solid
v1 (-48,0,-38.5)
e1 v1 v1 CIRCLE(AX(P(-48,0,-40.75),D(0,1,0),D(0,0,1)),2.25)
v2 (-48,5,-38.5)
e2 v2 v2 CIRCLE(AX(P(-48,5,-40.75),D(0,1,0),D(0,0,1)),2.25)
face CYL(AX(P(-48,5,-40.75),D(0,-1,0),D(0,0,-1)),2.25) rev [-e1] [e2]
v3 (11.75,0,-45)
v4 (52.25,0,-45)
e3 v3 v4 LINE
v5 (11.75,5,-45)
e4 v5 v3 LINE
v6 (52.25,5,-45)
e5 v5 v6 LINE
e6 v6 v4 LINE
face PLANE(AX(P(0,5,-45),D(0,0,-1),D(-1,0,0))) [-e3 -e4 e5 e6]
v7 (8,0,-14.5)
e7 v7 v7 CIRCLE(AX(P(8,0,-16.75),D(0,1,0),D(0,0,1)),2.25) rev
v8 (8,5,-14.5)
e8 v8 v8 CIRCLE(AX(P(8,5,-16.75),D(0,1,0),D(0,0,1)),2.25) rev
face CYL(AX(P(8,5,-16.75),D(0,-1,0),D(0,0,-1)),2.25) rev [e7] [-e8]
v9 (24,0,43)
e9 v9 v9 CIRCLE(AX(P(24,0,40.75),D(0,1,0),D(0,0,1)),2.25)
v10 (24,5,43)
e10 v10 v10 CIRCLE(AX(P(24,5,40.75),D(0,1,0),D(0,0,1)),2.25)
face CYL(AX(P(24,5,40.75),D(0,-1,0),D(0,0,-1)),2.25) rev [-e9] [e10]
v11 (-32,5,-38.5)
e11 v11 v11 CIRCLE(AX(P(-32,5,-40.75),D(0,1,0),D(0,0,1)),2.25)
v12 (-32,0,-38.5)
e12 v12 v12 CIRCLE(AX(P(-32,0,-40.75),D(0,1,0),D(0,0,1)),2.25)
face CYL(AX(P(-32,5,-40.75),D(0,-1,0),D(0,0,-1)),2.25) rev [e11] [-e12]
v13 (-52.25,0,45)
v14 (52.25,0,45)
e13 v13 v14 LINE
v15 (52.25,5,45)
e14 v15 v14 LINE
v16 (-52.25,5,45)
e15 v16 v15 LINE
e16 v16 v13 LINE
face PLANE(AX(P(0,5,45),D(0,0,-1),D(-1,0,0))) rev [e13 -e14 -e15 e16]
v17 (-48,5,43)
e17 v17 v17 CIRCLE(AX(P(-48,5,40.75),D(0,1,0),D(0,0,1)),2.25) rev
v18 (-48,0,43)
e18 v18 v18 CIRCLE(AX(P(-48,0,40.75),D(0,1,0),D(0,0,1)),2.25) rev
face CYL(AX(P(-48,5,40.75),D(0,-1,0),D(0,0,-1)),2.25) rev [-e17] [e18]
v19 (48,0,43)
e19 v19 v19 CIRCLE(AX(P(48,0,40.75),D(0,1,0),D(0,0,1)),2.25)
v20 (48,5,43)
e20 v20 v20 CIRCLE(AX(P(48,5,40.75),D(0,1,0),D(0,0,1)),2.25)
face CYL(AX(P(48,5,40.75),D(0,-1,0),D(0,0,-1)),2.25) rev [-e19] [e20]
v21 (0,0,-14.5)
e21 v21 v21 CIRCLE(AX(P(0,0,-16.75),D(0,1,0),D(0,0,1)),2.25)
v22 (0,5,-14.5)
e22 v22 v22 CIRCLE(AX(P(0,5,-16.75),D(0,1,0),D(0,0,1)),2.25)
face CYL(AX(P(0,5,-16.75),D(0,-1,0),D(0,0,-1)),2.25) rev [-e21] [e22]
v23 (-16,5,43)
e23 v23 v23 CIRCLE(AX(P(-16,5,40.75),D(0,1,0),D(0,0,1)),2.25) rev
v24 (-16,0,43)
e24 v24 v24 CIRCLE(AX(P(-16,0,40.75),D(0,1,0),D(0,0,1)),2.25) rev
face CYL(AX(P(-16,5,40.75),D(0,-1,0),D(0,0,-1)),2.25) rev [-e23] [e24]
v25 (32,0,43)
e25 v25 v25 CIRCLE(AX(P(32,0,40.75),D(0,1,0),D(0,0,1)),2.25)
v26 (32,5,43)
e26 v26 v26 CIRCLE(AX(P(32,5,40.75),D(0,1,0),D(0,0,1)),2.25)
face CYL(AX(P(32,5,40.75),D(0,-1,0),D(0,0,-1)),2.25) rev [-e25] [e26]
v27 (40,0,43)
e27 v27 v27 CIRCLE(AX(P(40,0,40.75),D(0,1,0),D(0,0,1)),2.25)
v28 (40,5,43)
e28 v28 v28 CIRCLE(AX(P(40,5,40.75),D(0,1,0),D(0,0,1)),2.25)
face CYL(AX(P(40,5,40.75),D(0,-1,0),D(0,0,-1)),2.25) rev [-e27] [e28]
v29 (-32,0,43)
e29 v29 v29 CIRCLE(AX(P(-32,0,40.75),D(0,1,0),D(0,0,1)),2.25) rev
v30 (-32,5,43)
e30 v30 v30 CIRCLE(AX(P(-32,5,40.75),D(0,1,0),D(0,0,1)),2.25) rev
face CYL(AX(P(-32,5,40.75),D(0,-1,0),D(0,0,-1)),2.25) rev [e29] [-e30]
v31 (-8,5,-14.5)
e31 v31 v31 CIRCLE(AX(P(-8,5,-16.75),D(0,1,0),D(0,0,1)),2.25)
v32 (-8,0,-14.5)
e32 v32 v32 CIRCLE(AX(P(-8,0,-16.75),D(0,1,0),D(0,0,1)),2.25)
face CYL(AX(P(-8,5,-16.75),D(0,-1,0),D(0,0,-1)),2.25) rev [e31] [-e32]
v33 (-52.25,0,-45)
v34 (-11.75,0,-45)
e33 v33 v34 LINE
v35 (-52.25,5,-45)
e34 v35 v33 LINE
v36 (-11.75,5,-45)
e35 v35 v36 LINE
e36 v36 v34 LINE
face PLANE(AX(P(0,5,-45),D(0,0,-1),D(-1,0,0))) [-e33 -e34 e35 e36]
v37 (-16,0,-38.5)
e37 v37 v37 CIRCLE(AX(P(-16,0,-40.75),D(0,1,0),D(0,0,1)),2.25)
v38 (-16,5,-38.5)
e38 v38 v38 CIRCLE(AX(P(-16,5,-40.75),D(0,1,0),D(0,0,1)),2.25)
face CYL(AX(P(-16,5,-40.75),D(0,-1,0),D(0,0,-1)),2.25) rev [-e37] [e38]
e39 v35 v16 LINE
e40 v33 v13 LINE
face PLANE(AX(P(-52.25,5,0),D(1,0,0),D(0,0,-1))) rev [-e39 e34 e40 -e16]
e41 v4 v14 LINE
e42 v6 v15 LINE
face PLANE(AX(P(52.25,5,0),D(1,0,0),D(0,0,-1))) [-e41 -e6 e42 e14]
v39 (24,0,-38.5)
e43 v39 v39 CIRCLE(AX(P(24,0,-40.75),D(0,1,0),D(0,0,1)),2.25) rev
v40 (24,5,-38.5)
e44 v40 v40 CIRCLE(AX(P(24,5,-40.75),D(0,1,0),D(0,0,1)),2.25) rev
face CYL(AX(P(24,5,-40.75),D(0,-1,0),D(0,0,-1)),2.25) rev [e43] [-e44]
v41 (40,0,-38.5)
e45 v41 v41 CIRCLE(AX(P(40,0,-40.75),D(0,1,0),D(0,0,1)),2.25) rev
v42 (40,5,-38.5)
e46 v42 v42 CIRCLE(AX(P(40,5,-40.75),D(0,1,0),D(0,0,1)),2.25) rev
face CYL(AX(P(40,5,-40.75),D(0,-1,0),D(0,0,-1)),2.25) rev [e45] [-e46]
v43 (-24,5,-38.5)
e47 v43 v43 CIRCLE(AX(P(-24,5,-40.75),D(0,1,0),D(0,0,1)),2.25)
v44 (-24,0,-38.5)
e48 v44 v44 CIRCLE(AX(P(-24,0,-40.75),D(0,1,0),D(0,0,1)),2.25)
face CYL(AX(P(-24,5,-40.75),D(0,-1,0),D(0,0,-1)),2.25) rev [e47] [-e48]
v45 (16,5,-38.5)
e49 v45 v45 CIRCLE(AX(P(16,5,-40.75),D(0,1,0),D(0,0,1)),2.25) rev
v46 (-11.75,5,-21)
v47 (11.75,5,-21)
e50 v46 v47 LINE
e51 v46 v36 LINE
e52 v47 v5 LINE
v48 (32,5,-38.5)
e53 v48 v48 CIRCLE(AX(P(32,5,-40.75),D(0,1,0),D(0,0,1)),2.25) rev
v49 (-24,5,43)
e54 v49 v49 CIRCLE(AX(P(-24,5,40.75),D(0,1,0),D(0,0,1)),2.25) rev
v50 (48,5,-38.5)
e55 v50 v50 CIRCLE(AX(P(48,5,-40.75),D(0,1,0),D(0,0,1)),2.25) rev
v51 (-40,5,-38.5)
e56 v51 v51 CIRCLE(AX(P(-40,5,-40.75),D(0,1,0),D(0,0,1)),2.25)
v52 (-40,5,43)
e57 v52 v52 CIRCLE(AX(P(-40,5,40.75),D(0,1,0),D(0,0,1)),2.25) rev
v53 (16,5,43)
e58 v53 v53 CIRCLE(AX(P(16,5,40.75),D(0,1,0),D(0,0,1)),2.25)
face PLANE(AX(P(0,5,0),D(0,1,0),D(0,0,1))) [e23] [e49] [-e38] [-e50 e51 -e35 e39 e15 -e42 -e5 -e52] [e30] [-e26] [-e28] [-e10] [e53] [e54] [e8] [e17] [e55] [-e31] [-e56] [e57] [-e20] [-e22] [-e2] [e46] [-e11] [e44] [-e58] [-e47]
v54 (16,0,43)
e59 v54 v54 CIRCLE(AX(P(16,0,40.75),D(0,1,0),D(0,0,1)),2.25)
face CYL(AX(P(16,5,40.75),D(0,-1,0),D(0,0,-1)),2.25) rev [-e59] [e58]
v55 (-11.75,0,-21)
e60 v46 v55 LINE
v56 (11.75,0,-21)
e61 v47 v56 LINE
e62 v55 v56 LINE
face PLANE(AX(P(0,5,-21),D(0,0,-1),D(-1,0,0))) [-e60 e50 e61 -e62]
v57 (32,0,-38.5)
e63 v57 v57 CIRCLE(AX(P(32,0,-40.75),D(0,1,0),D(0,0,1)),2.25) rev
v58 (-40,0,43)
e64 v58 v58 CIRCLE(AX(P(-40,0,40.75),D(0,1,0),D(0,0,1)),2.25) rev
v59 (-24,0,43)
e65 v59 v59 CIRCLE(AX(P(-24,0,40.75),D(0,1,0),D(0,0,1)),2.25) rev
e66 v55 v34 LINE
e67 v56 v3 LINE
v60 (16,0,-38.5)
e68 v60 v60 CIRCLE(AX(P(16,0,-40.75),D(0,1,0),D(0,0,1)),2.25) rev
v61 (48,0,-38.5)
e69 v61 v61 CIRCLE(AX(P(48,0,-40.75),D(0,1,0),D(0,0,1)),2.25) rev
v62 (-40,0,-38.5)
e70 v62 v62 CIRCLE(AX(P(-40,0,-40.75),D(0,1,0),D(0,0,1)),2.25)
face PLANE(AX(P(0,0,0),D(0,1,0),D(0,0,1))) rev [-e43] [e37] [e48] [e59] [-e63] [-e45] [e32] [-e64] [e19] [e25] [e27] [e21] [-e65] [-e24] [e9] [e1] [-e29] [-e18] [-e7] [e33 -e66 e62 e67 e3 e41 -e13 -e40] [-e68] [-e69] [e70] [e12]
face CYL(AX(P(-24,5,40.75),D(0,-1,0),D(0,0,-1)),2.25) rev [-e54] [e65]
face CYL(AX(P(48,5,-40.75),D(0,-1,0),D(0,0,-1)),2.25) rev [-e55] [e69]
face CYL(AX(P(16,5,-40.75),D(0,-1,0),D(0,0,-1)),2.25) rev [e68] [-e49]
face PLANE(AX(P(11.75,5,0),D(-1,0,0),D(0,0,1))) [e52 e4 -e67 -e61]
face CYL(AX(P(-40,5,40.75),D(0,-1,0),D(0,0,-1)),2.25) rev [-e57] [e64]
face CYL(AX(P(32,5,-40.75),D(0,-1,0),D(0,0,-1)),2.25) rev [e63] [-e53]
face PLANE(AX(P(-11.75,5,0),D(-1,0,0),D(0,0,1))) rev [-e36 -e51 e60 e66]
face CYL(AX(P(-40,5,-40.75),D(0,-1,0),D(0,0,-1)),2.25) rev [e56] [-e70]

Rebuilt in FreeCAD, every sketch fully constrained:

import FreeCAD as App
import Part
import Sketcher
from FreeCAD import Vector

doc = App.newDocument("Part")
body = doc.addObject("PartDesign::Body", "Body")

# Sketch on XZ plane
sketch1 = body.newObject("Sketcher::SketchObject", "Sketch")
sketch1.AttachmentSupport = (doc.getObject("XZ_Plane"), [""])
sketch1.MapMode = "FlatFace"
sketch1.addGeometry([
    Part.LineSegment(Vector(-11.75, -45, 0), Vector(-52.25, -45, 0)),  # 0
    Part.LineSegment(Vector(-52.25, -45, 0), Vector(-52.25, 45, 0)),  # 1
    Part.LineSegment(Vector(-52.25, 45, 0), Vector(52.25, 45, 0)),  # 2
    Part.LineSegment(Vector(52.25, 45, 0), Vector(52.25, -45, 0)),  # 3
    Part.LineSegment(Vector(52.25, -45, 0), Vector(11.75, -45, 0)),  # 4
    Part.LineSegment(Vector(11.75, -45, 0), Vector(11.75, -21, 0)),  # 5
    Part.LineSegment(Vector(11.75, -21, 0), Vector(-11.75, -21, 0)),  # 6
    Part.LineSegment(Vector(-11.75, -21, 0), Vector(-11.75, -45, 0)),  # 7
    Part.Circle(Vector(-48, 40.75, 0), Vector(0, 0, 1), 2.25),  # 8
    Part.Circle(Vector(-40, 40.75, 0), Vector(0, 0, 1), 2.25),  # 9
    Part.Circle(Vector(-32, 40.75, 0), Vector(0, 0, 1), 2.25),  # 10
    Part.Circle(Vector(-24, 40.75, 0), Vector(0, 0, 1), 2.25),  # 11
    Part.Circle(Vector(-16, 40.75, 0), Vector(0, 0, 1), 2.25),  # 12
    Part.Circle(Vector(16, 40.75, 0), Vector(0, 0, 1), 2.25),  # 13
    Part.Circle(Vector(24, 40.75, 0), Vector(0, 0, 1), 2.25),  # 14
    Part.Circle(Vector(32, 40.75, 0), Vector(0, 0, 1), 2.25),  # 15
    Part.Circle(Vector(40, 40.75, 0), Vector(0, 0, 1), 2.25),  # 16
    Part.Circle(Vector(48, 40.75, 0), Vector(0, 0, 1), 2.25),  # 17
    Part.Circle(Vector(-8, -16.75, 0), Vector(0, 0, 1), 2.25),  # 18
    Part.Circle(Vector(-48, -40.75, 0), Vector(0, 0, 1), 2.25),  # 19
    Part.Circle(Vector(-40, -40.75, 0), Vector(0, 0, 1), 2.25),  # 20
    Part.Circle(Vector(-32, -40.75, 0), Vector(0, 0, 1), 2.25),  # 21
    Part.Circle(Vector(-24, -40.75, 0), Vector(0, 0, 1), 2.25),  # 22
    Part.Circle(Vector(-16, -40.75, 0), Vector(0, 0, 1), 2.25),  # 23
    Part.Circle(Vector(0, -16.75, 0), Vector(0, 0, 1), 2.25),  # 24
    Part.Circle(Vector(8, -16.75, 0), Vector(0, 0, 1), 2.25),  # 25
    Part.Circle(Vector(16, -40.75, 0), Vector(0, 0, 1), 2.25),  # 26
    Part.Circle(Vector(24, -40.75, 0), Vector(0, 0, 1), 2.25),  # 27
    Part.Circle(Vector(32, -40.75, 0), Vector(0, 0, 1), 2.25),  # 28
    Part.Circle(Vector(40, -40.75, 0), Vector(0, 0, 1), 2.25),  # 29
    Part.Circle(Vector(48, -40.75, 0), Vector(0, 0, 1), 2.25),  # 30
], False)
sketch1.addConstraint([
    Sketcher.Constraint("Coincident", 0, 2, 1, 1),
    Sketcher.Constraint("Coincident", 1, 2, 2, 1),
    Sketcher.Constraint("Coincident", 2, 2, 3, 1),
    Sketcher.Constraint("Coincident", 3, 2, 4, 1),
    Sketcher.Constraint("Coincident", 4, 2, 5, 1),
    Sketcher.Constraint("Coincident", 5, 2, 6, 1),
    Sketcher.Constraint("Coincident", 6, 2, 7, 1),
    Sketcher.Constraint("Coincident", 7, 2, 0, 1),
    Sketcher.Constraint("Horizontal", 0),
    Sketcher.Constraint("Vertical", 1),
    Sketcher.Constraint("Horizontal", 2),
    Sketcher.Constraint("Vertical", 3),
    Sketcher.Constraint("Horizontal", 4),
    Sketcher.Constraint("Vertical", 5),
    Sketcher.Constraint("Horizontal", 6),
    Sketcher.Constraint("Vertical", 7),
    Sketcher.Constraint("Equal", 8, 9),
    Sketcher.Constraint("Equal", 9, 10),
    Sketcher.Constraint("Equal", 10, 11),
    Sketcher.Constraint("Equal", 11, 12),
    Sketcher.Constraint("Equal", 12, 13),
    Sketcher.Constraint("Equal", 13, 14),
    Sketcher.Constraint("Equal", 14, 15),
    Sketcher.Constraint("Equal", 15, 16),
    Sketcher.Constraint("Equal", 16, 17),
    Sketcher.Constraint("Equal", 17, 18),
    Sketcher.Constraint("Equal", 18, 19),
    Sketcher.Constraint("Equal", 19, 20),
    Sketcher.Constraint("Equal", 20, 21),
    Sketcher.Constraint("Equal", 21, 22),
    Sketcher.Constraint("Equal", 22, 23),
    Sketcher.Constraint("Equal", 23, 24),
    Sketcher.Constraint("Equal", 24, 25),
    Sketcher.Constraint("Equal", 25, 26),
    Sketcher.Constraint("Equal", 26, 27),
    Sketcher.Constraint("Equal", 27, 28),
    Sketcher.Constraint("Equal", 28, 29),
    Sketcher.Constraint("Equal", 29, 30),
    Sketcher.Constraint("Symmetric", 17, 3, 19, 3, -1, 1),
    Sketcher.Constraint("Symmetric", 16, 3, 20, 3, -1, 1),
    Sketcher.Constraint("Symmetric", 15, 3, 21, 3, -1, 1),
    Sketcher.Constraint("Symmetric", 14, 3, 22, 3, -1, 1),
    Sketcher.Constraint("Symmetric", 13, 3, 23, 3, -1, 1),
    Sketcher.Constraint("Symmetric", 12, 3, 26, 3, -1, 1),
    Sketcher.Constraint("Symmetric", 11, 3, 27, 3, -1, 1),
    Sketcher.Constraint("Symmetric", 10, 3, 28, 3, -1, 1),
    Sketcher.Constraint("Symmetric", 9, 3, 29, 3, -1, 1),
    Sketcher.Constraint("Symmetric", 8, 3, 30, 3, -1, 1),
    Sketcher.Constraint("Symmetric", 0, 2, 2, 2, -1, 1),
    Sketcher.Constraint("Symmetric", 12, 3, 13, 3, -2),
    Sketcher.Constraint("Symmetric", 11, 3, 14, 3, -2),
    Sketcher.Constraint("Symmetric", 10, 3, 15, 3, -2),
    Sketcher.Constraint("Symmetric", 9, 3, 16, 3, -2),
    Sketcher.Constraint("Symmetric", 8, 3, 17, 3, -2),
    Sketcher.Constraint("Symmetric", 18, 3, 25, 3, -2),
    Sketcher.Constraint("Symmetric", 4, 2, 7, 2, -2),
    Sketcher.Constraint("PointOnObject", 24, 3, -2),
    Sketcher.Constraint("Horizontal", 8, 3, 9, 3),
    Sketcher.Constraint("Horizontal", 9, 3, 10, 3),
    Sketcher.Constraint("Horizontal", 10, 3, 11, 3),
    Sketcher.Constraint("Horizontal", 11, 3, 12, 3),
    Sketcher.Constraint("Horizontal", 18, 3, 24, 3),
    Sketcher.Constraint("Diameter", 8, 4.5),
    Sketcher.Constraint("DistanceY", 1, 1, 1, 2, 90.0),
    Sketcher.Constraint("DistanceY", 5, 1, 5, 2, 24.0),
    Sketcher.Constraint("DistanceX", 0, 2, 0, 1, 40.5),
    Sketcher.Constraint("DistanceX", 2, 1, 2, 2, 104.5),
    Sketcher.Constraint("DistanceX", 8, 3, -1, 1, 48.0),
    Sketcher.Constraint("DistanceX", 9, 3, -1, 1, 40.0),
    Sketcher.Constraint("DistanceX", 10, 3, -1, 1, 32.0),
    Sketcher.Constraint("DistanceX", 11, 3, -1, 1, 24.0),
    Sketcher.Constraint("DistanceX", 12, 3, -1, 1, 16.0),
    Sketcher.Constraint("DistanceX", 18, 3, -1, 1, 8.0),
    Sketcher.Constraint("DistanceY", 19, 3, 18, 3, 24.0),
    Sketcher.Constraint("DistanceY", 18, 3, 12, 3, 57.5),
])
pad1 = body.newObject("PartDesign::Pad", "Pad")
pad1.Profile = sketch1
pad1.Length = 5
pad1.Reversed = True

doc.recompute()
